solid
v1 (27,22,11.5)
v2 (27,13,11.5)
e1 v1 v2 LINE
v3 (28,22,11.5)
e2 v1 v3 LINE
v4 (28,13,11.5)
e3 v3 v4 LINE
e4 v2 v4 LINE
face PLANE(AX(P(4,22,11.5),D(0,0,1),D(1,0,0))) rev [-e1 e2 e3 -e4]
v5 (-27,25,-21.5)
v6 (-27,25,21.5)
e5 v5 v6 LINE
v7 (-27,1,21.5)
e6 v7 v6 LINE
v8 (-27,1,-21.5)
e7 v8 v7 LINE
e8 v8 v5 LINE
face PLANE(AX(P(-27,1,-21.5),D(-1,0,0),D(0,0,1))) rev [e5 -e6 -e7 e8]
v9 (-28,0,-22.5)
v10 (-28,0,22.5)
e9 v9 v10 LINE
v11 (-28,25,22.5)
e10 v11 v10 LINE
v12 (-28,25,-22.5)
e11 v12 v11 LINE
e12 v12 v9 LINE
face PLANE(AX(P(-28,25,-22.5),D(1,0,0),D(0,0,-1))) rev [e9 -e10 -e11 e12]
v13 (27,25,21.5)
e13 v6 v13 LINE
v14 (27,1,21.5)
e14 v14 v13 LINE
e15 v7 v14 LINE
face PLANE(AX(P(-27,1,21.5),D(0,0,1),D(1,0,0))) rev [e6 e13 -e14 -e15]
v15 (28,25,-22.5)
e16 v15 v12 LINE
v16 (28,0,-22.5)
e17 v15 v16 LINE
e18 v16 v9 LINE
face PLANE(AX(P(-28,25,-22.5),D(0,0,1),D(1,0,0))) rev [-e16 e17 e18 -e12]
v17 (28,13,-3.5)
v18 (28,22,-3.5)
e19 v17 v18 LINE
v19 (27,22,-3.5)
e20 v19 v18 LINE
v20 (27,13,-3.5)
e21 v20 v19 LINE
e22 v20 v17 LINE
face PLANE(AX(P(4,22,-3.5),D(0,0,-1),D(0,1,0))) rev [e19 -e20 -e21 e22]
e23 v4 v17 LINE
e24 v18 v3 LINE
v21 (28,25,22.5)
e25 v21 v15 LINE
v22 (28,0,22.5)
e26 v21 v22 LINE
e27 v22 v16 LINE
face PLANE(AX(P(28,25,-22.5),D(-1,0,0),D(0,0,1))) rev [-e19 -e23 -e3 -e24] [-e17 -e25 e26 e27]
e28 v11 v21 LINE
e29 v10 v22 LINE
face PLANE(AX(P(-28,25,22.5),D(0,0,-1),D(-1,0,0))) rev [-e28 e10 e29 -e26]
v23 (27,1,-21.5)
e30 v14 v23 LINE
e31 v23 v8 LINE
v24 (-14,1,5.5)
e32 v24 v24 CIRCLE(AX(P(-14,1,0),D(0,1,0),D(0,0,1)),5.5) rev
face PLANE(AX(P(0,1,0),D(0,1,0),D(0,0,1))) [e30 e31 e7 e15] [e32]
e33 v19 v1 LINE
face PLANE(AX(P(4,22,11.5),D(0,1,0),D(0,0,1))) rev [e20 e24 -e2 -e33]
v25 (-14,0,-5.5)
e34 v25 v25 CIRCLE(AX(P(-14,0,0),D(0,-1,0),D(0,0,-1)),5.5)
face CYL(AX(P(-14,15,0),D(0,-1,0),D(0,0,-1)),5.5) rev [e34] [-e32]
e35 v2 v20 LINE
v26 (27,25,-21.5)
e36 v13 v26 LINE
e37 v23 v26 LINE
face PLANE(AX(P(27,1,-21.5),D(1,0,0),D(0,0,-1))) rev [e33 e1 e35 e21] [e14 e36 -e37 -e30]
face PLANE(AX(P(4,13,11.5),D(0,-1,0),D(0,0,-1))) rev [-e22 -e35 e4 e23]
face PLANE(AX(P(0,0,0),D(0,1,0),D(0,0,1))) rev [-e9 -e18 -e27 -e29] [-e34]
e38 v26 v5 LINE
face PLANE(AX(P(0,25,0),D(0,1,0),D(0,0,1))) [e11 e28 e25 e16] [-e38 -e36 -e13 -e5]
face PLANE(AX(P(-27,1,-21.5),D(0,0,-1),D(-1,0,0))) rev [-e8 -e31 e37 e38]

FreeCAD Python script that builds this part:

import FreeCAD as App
import Part
import Sketcher
from FreeCAD import Vector

doc = App.newDocument("Part")
params = doc.addObject("Spreadsheet::Sheet", "Params")
for row, (alias, value) in enumerate([
    ("sketch1_width", "56 mm"),
    ("sketch1_height", "45 mm"),
    ("pad1_length", "25 mm"),
    ("sketch2_diameter", "11 mm"),
    ("pocket1_length", "15 mm"),
    ("sketch3_width", "54 mm"),
    ("sketch3_height", "43 mm"),
    ("pocket2_length", "24 mm"),
    ("sketch4_width", "9 mm"),
    ("sketch4_height", "15 mm"),
    ("pocket3_length", "24 mm"),
], start=1):
    params.set(f"A{row}", alias)
    params.set(f"B{row}", "=" + value)
    params.setAlias(f"B{row}", alias)

body = doc.addObject("PartDesign::Body", "Body")

# Sketch on XZ plane
sketch1 = doc.addObject("Sketcher::SketchObject", "Sketch")
body.addObject(sketch1)
sketch1.AttachmentSupport = (doc.XZ_Plane, [""])
sketch1.MapMode = "FlatFace"
sketch1.addGeometry([
    Part.LineSegment(Vector(-28, -22, 0), Vector(-28, 22, 0)),
    Part.LineSegment(Vector(-28, 22, 0), Vector(28, 22, 0)),
    Part.LineSegment(Vector(28, 22, 0), Vector(28, -22, 0)),
    Part.LineSegment(Vector(28, -22, 0), Vector(-28, -22, 0)),
], False)
sketch1.addConstraint([
    Sketcher.Constraint("Coincident", 0, 2, 1, 1),
    Sketcher.Constraint("Coincident", 1, 2, 2, 1),
    Sketcher.Constraint("Coincident", 2, 2, 3, 1),
    Sketcher.Constraint("Coincident", 3, 2, 0, 1),
    Sketcher.Constraint("Vertical", 0),
    Sketcher.Constraint("Horizontal", 1),
    Sketcher.Constraint("Vertical", 2),
    Sketcher.Constraint("Horizontal", 3),
    Sketcher.Constraint("Symmetric", 0, 2, 2, 2, -1, 1),
    Sketcher.Constraint("DistanceX", 1, 1, 1, 2, 56.0),
    Sketcher.Constraint("DistanceY", 0, 1, 0, 2, 45.0),
])
sketch1.setExpression("Constraints[9]", "Params.sketch1_width")
sketch1.setExpression("Constraints[10]", "Params.sketch1_height")
pad1 = doc.addObject("PartDesign::Pad", "Pad")
body.addObject(pad1)
pad1.Profile = sketch1
pad1.setExpression("Length", "Params.pad1_length")
pad1.Reversed = True

# Sketch on XZ plane
sketch2 = doc.addObject("Sketcher::SketchObject", "Sketch001")
body.addObject(sketch2)
sketch2.AttachmentSupport = (doc.XZ_Plane, [""])
sketch2.MapMode = "FlatFace"
sketch2.addGeometry(Part.Circle(Vector(-14, 0, 0), Vector(0, 0, 1), 6), False)
sketch2.addConstraint([
    Sketcher.Constraint("PointOnObject", 0, 3, -1),
    Sketcher.Constraint("Diameter", 0, 11.0),
    Sketcher.Constraint("DistanceX", 0, 3, -1, 1, 14.0),
])
sketch2.setExpression("Constraints[1]", "Params.sketch2_diameter")
pocket1 = doc.addObject("PartDesign::Pocket", "Pocket")
body.addObject(pocket1)
pocket1.Profile = sketch2
pocket1.setExpression("Length", "Params.pocket1_length")

# Sketch on XZ plane
sketch3 = doc.addObject("Sketcher::SketchObject", "Sketch002")
body.addObject(sketch3)
sketch3.AttachmentSupport = (doc.XZ_Plane, [""])
sketch3.MapMode = "FlatFace"
sketch3.AttachmentOffset = App.Placement(Vector(0, 0, -25), App.Rotation())
sketch3.addGeometry([
    Part.LineSegment(Vector(-27, -22, 0), Vector(-27, 22, 0)),
    Part.LineSegment(Vector(-27, 22, 0), Vector(27, 22, 0)),
    Part.LineSegment(Vector(27, 22, 0), Vector(27, -22, 0)),
    Part.LineSegment(Vector(27, -22, 0), Vector(-27, -22, 0)),
], False)
sketch3.addConstraint([
    Sketcher.Constraint("Coincident", 0, 2, 1, 1),
    Sketcher.Constraint("Coincident", 1, 2, 2, 1),
    Sketcher.Constraint("Coincident", 2, 2, 3, 1),
    Sketcher.Constraint("Coincident", 3, 2, 0, 1),
    Sketcher.Constraint("Vertical", 0),
    Sketcher.Constraint("Horizontal", 1),
    Sketcher.Constraint("Vertical", 2),
    Sketcher.Constraint("Horizontal", 3),
    Sketcher.Constraint("Symmetric", 0, 2, 2, 2, -1, 1),
    Sketcher.Constraint("DistanceX", 1, 1, 1, 2, 54.0),
    Sketcher.Constraint("DistanceY", 0, 1, 0, 2, 43.0),
])
sketch3.setExpression("Constraints[9]", "Params.sketch3_width")
sketch3.setExpression("Constraints[10]", "Params.sketch3_height")
pocket2 = doc.addObject("PartDesign::Pocket", "Pocket001")
body.addObject(pocket2)
pocket2.Profile = sketch3
pocket2.setExpression("Length", "Params.pocket2_length")
pocket2.Reversed = True

# Sketch on YZ plane
sketch4 = doc.addObject("Sketcher::SketchObject", "Sketch003")
body.addObject(sketch4)
sketch4.AttachmentSupport = (doc.YZ_Plane, [""])
sketch4.MapMode = "FlatFace"
sketch4.AttachmentOffset = App.Placement(Vector(0, 0, 28), App.Rotation())
sketch4.addGeometry([
    Part.LineSegment(Vector(22, 12, 0), Vector(13, 12, 0)),
    Part.LineSegment(Vector(13, 12, 0), Vector(13, -4, 0)),
    Part.LineSegment(Vector(13, -4, 0), Vector(22, -4, 0)),
    Part.LineSegment(Vector(22, -4, 0), Vector(22, 12, 0)),
], False)
sketch4.addConstraint([
    Sketcher.Constraint("Coincident", 0, 2, 1, 1),
    Sketcher.Constraint("Coincident", 1, 2, 2, 1),
    Sketcher.Constraint("Coincident", 2, 2, 3, 1),
    Sketcher.Constraint("Coincident", 3, 2, 0, 1),
    Sketcher.Constraint("Horizontal", 0),
    Sketcher.Constraint("Vertical", 1),
    Sketcher.Constraint("Horizontal", 2),
    Sketcher.Constraint("Vertical", 3),
    Sketcher.Constraint("DistanceX", 0, 2, 0, 1, 9.0),
    Sketcher.Constraint("DistanceY", 1, 2, 1, 1, 15.0),
    Sketcher.Constraint("DistanceX", -1, 1, 0, 2, 13.0),
    Sketcher.Constraint("DistanceY", -1, 1, 0, 2, 11.5),
])
sketch4.setExpression("Constraints[8]", "Params.sketch4_width")
sketch4.setExpression("Constraints[9]", "Params.sketch4_height")
pocket3 = doc.addObject("PartDesign::Pocket", "Pocket002")
body.addObject(pocket3)
pocket3.Profile = sketch4
pocket3.setExpression("Length", "Params.pocket3_length")

doc.recompute()
